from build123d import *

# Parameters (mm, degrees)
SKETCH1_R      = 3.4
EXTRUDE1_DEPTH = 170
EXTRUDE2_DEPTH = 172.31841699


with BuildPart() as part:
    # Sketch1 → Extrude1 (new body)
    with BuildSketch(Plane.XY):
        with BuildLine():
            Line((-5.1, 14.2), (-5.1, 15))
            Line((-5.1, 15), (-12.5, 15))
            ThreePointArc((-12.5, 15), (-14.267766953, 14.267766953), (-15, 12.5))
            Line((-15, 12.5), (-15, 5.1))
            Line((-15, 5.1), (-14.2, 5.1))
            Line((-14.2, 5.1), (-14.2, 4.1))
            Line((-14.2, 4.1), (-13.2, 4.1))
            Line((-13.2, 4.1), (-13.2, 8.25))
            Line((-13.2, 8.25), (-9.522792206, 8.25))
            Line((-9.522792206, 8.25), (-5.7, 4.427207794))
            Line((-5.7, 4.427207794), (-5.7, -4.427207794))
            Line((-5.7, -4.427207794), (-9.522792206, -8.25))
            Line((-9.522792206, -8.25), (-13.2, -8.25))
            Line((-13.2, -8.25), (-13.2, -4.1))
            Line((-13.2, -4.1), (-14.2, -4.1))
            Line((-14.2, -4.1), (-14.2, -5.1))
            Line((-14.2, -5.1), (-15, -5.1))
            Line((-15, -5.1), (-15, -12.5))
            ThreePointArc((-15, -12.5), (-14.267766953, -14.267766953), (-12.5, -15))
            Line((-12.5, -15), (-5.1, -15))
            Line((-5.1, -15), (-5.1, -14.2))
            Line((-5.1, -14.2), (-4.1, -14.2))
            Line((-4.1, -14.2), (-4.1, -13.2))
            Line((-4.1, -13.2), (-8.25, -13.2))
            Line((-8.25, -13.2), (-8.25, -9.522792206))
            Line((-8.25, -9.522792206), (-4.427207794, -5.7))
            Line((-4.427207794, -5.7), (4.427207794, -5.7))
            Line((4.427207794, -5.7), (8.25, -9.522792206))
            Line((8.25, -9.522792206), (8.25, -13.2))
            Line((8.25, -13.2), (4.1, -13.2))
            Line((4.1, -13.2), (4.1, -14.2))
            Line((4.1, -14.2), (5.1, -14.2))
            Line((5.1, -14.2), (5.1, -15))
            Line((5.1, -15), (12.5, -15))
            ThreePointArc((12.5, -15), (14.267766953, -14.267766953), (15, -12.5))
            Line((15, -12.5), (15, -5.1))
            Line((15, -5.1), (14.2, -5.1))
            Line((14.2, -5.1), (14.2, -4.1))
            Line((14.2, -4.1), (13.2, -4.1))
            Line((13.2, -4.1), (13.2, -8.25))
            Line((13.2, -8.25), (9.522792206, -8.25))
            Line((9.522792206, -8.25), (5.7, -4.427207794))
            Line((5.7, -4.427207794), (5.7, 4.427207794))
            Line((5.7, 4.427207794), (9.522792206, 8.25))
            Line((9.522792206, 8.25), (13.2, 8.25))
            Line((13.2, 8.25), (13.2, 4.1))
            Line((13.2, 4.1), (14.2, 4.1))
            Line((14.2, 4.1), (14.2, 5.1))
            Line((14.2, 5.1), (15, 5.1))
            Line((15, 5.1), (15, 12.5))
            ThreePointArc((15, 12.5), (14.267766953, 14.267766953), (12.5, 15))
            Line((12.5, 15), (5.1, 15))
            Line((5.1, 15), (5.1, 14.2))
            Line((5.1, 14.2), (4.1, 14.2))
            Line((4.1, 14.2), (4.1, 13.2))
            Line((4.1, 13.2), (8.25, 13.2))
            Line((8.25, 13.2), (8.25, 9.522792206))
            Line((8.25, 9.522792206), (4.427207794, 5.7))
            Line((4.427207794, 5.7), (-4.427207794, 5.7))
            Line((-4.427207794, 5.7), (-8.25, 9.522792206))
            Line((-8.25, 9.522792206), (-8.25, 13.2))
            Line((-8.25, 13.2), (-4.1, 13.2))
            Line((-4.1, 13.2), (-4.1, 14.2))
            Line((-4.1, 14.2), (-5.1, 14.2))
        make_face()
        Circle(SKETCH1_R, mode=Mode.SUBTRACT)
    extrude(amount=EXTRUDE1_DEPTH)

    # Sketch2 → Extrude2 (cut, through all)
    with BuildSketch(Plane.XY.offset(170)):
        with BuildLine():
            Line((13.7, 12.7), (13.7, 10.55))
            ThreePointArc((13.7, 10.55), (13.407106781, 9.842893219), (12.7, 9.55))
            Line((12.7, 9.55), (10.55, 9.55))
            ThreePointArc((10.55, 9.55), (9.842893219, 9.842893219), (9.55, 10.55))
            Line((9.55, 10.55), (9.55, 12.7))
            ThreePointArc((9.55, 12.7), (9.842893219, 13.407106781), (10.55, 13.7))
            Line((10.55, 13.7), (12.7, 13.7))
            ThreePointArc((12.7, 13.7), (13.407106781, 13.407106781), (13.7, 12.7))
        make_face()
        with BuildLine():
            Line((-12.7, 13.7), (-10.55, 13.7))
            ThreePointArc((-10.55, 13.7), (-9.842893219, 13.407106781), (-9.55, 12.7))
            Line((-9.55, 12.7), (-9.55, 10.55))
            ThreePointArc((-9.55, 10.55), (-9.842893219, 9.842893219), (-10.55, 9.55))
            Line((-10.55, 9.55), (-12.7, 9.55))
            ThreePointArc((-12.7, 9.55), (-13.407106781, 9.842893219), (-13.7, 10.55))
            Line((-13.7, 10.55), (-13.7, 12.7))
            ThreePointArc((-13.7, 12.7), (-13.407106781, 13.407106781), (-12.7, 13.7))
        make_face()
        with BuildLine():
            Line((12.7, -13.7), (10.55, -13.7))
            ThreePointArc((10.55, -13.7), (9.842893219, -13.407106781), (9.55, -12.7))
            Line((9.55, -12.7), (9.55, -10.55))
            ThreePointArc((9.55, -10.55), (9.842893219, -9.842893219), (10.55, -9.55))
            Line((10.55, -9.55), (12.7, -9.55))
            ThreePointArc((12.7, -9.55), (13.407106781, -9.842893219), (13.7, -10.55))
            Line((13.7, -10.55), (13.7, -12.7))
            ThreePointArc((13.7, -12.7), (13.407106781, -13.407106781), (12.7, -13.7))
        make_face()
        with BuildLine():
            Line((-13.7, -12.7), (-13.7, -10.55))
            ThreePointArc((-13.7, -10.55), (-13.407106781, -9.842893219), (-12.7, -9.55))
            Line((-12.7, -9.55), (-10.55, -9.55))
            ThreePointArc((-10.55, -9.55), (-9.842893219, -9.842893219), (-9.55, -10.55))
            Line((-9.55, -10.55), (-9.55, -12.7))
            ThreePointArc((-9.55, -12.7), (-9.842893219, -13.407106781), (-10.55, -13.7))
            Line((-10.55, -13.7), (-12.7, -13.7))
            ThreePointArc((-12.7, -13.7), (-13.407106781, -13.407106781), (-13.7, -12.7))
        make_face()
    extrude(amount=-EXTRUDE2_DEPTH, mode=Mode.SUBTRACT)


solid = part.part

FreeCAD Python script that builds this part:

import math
import FreeCAD as App
import Part
import Sketcher
from FreeCAD import Vector
Q = App.Units.Quantity

doc = App.newDocument("Part")
params = doc.addObject("Spreadsheet::Sheet", "Params")
for row, (alias, value) in enumerate([
    ("sketch1_diameter", "6.8 mm"),
    ("sketch1_radius", "2.5 mm"),
    ("sketch1_width", "1 mm"),
    ("sketch1_width2", "7.4 mm"),
    ("sketch1_width3", "0.8 mm"),
    ("pad1_length", "170 mm"),
    ("sketch2_radius", "1 mm"),
    ("sketch2_width", "2.15 mm"),
], start=1):
    params.set(f"A{row}", alias)
    params.set(f"B{row}", "=" + value)
    params.setAlias(f"B{row}", alias)

body = doc.addObject("PartDesign::Body", "Body")

sketch1 = body.newObject("Sketcher::SketchObject", "Sketch")
sketch1.AttachmentSupport = (doc.getObject("XY_Plane"), [""])
sketch1.MapMode = "FlatFace"
sketch1.addGeometry(Part.LineSegment(Vector(-5.1, 14.2, 0), Vector(-5.1, 15, 0)), False)
sketch1.addGeometry(Part.LineSegment(Vector(-5.1, 15, 0), Vector(-12.5, 15, 0)), False)
sketch1.addGeometry(Part.ArcOfCircle(Part.Circle(Vector(-12.5, 12.5, 0), Vector(0, 0, 1), 2.5), math.radians(90), math.radians(180)), False)
sketch1.addGeometry(Part.LineSegment(Vector(-15, 12.5, 0), Vector(-15, 5.1, 0)), False)
sketch1.addGeometry(Part.LineSegment(Vector(-15, 5.1, 0), Vector(-14.2, 5.1, 0)), False)
sketch1.addGeometry(Part.LineSegment(Vector(-14.2, 5.1, 0), Vector(-14.2, 4.1, 0)), False)
sketch1.addGeometry(Part.LineSegment(Vector(-14.2, 4.1, 0), Vector(-13.2, 4.1, 0)), False)
sketch1.addGeometry(Part.LineSegment(Vector(-13.2, 4.1, 0), Vector(-13.2, 8.25, 0)), False)
sketch1.addGeometry(Part.LineSegment(Vector(-13.2, 8.25, 0), Vector(-9.522792, 8.25, 0)), False)
sketch1.addGeometry(Part.LineSegment(Vector(-9.522792, 8.25, 0), Vector(-5.7, 4.427208, 0)), False)
sketch1.addGeometry(Part.LineSegment(Vector(-5.7, 4.427208, 0), Vector(-5.7, -4.427208, 0)), False)
sketch1.addGeometry(Part.LineSegment(Vector(-5.7, -4.427208, 0), Vector(-9.522792, -8.25, 0)), False)
sketch1.addGeometry(Part.LineSegment(Vector(-9.522792, -8.25, 0), Vector(-13.2, -8.25, 0)), False)
sketch1.addGeometry(Part.LineSegment(Vector(-13.2, -8.25, 0), Vector(-13.2, -4.1, 0)), False)
sketch1.addGeometry(Part.LineSegment(Vector(-13.2, -4.1, 0), Vector(-14.2, -4.1, 0)), False)
sketch1.addGeometry(Part.LineSegment(Vector(-14.2, -4.1, 0), Vector(-14.2, -5.1, 0)), False)
sketch1.addGeometry(Part.LineSegment(Vector(-14.2, -5.1, 0), Vector(-15, -5.1, 0)), False)
sketch1.addGeometry(Part.LineSegment(Vector(-15, -5.1, 0), Vector(-15, -12.5, 0)), False)
sketch1.addGeometry(Part.ArcOfCircle(Part.Circle(Vector(-12.5, -12.5, 0), Vector(0, 0, 1), 2.5), math.radians(180), math.radians(270)), False)
sketch1.addGeometry(Part.LineSegment(Vector(-12.5, -15, 0), Vector(-5.1, -15, 0)), False)
sketch1.addGeometry(Part.LineSegment(Vector(-5.1, -15, 0), Vector(-5.1, -14.2, 0)), False)
sketch1.addGeometry(Part.LineSegment(Vector(-5.1, -14.2, 0), Vector(-4.1, -14.2, 0)), False)
sketch1.addGeometry(Part.LineSegment(Vector(-4.1, -14.2, 0), Vector(-4.1, -13.2, 0)), False)
sketch1.addGeometry(Part.LineSegment(Vector(-4.1, -13.2, 0), Vector(-8.25, -13.2, 0)), False)
sketch1.addGeometry(Part.LineSegment(Vector(-8.25, -13.2, 0), Vector(-8.25, -9.522792, 0)), False)
sketch1.addGeometry(Part.LineSegment(Vector(-8.25, -9.522792, 0), Vector(-4.427208, -5.7, 0)), False)
sketch1.addGeometry(Part.LineSegment(Vector(-4.427208, -5.7, 0), Vector(4.427208, -5.7, 0)), False)
sketch1.addGeometry(Part.LineSegment(Vector(4.427208, -5.7, 0), Vector(8.25, -9.522792, 0)), False)
sketch1.addGeometry(Part.LineSegment(Vector(8.25, -9.522792, 0), Vector(8.25, -13.2, 0)), False)
sketch1.addGeometry(Part.LineSegment(Vector(8.25, -13.2, 0), Vector(4.1, -13.2, 0)), False)
sketch1.addGeometry(Part.LineSegment(Vector(4.1, -13.2, 0), Vector(4.1, -14.2, 0)), False)
sketch1.addGeometry(Part.LineSegment(Vector(4.1, -14.2, 0), Vector(5.1, -14.2, 0)), False)
sketch1.addGeometry(Part.LineSegment(Vector(5.1, -14.2, 0), Vector(5.1, -15, 0)), False)
sketch1.addGeometry(Part.LineSegment(Vector(5.1, -15, 0), Vector(12.5, -15, 0)), False)
sketch1.addGeometry(Part.ArcOfCircle(Part.Circle(Vector(12.5, -12.5, 0), Vector(0, 0, 1), 2.5), math.radians(-90), math.radians(0)), False)
sketch1.addGeometry(Part.LineSegment(Vector(15, -12.5, 0), Vector(15, -5.1, 0)), False)
sketch1.addGeometry(Part.LineSegment(Vector(15, -5.1, 0), Vector(14.2, -5.1, 0)), False)
sketch1.addGeometry(Part.LineSegment(Vector(14.2, -5.1, 0), Vector(14.2, -4.1, 0)), False)
sketch1.addGeometry(Part.LineSegment(Vector(14.2, -4.1, 0), Vector(13.2, -4.1, 0)), False)
sketch1.addGeometry(Part.LineSegment(Vector(13.2, -4.1, 0), Vector(13.2, -8.25, 0)), False)
sketch1.addGeometry(Part.LineSegment(Vector(13.2, -8.25, 0), Vector(9.522792, -8.25, 0)), False)
sketch1.addGeometry(Part.LineSegment(Vector(9.522792, -8.25, 0), Vector(5.7, -4.427208, 0)), False)
sketch1.addGeometry(Part.LineSegment(Vector(5.7, -4.427208, 0), Vector(5.7, 4.427208, 0)), False)
sketch1.addGeometry(Part.LineSegment(Vector(5.7, 4.427208, 0), Vector(9.522792, 8.25, 0)), False)
sketch1.addGeometry(Part.LineSegment(Vector(9.522792, 8.25, 0), Vector(13.2, 8.25, 0)), False)
sketch1.addGeometry(Part.LineSegment(Vector(13.2, 8.25, 0), Vector(13.2, 4.1, 0)), False)
sketch1.addGeometry(Part.LineSegment(Vector(13.2, 4.1, 0), Vector(14.2, 4.1, 0)), False)
sketch1.addGeometry(Part.LineSegment(Vector(14.2, 4.1, 0), Vector(14.2, 5.1, 0)), False)
sketch1.addGeometry(Part.LineSegment(Vector(14.2, 5.1, 0), Vector(15, 5.1, 0)), False)
sketch1.addGeometry(Part.LineSegment(Vector(15, 5.1, 0), Vector(15, 12.5, 0)), False)
sketch1.addGeometry(Part.ArcOfCircle(Part.Circle(Vector(12.5, 12.5, 0), Vector(0, 0, 1), 2.5), math.radians(0), math.radians(90)), False)
sketch1.addGeometry(Part.LineSegment(Vector(12.5, 15, 0), Vector(5.1, 15, 0)), False)
sketch1.addGeometry(Part.LineSegment(Vector(5.1, 15, 0), Vector(5.1, 14.2, 0)), False)
sketch1.addGeometry(Part.LineSegment(Vector(5.1, 14.2, 0), Vector(4.1, 14.2, 0)), False)
sketch1.addGeometry(Part.LineSegment(Vector(4.1, 14.2, 0), Vector(4.1, 13.2, 0)), False)
sketch1.addGeometry(Part.LineSegment(Vector(4.1, 13.2, 0), Vector(8.25, 13.2, 0)), False)
sketch1.addGeometry(Part.LineSegment(Vector(8.25, 13.2, 0), Vector(8.25, 9.522792, 0)), False)
sketch1.addGeometry(Part.LineSegment(Vector(8.25, 9.522792, 0), Vector(4.427208, 5.7, 0)), False)
sketch1.addGeometry(Part.LineSegment(Vector(4.427208, 5.7, 0), Vector(-4.427208, 5.7, 0)), False)
sketch1.addGeometry(Part.LineSegment(Vector(-4.427208, 5.7, 0), Vector(-8.25, 9.522792, 0)), False)
sketch1.addGeometry(Part.LineSegment(Vector(-8.25, 9.522792, 0), Vector(-8.25, 13.2, 0)), False)
sketch1.addGeometry(Part.LineSegment(Vector(-8.25, 13.2, 0), Vector(-4.1, 13.2, 0)), False)
sketch1.addGeometry(Part.LineSegment(Vector(-4.1, 13.2, 0), Vector(-4.1, 14.2, 0)), False)
sketch1.addGeometry(Part.LineSegment(Vector(-4.1, 14.2, 0), Vector(-5.1, 14.2, 0)), False)
sketch1.addGeometry(Part.Circle(Vector(0, 0, 0), Vector(0, 0, 1), 3.4), False)
sketch1.addConstraint(Sketcher.Constraint("Coincident", 0, 2, 1, 1))
sketch1.addConstraint(Sketcher.Constraint("Tangent", 1, 2, 2, 1))
sketch1.addConstraint(Sketcher.Constraint("Tangent", 2, 2, 3, 1))
sketch1.addConstraint(Sketcher.Constraint("Coincident", 3, 2, 4, 1))
sketch1.addConstraint(Sketcher.Constraint("Coincident", 4, 2, 5, 1))
sketch1.addConstraint(Sketcher.Constraint("Coincident", 5, 2, 6, 1))
sketch1.addConstraint(Sketcher.Constraint("Coincident", 6, 2, 7, 1))
sketch1.addConstraint(Sketcher.Constraint("Coincident", 7, 2, 8, 1))
sketch1.addConstraint(Sketcher.Constraint("Coincident", 8, 2, 9, 1))
sketch1.addConstraint(Sketcher.Constraint("Coincident", 9, 2, 10, 1))
sketch1.addConstraint(Sketcher.Constraint("Coincident", 10, 2, 11, 1))
sketch1.addConstraint(Sketcher.Constraint("Coincident", 11, 2, 12, 1))
sketch1.addConstraint(Sketcher.Constraint("Coincident", 12, 2, 13, 1))
sketch1.addConstraint(Sketcher.Constraint("Coincident", 13, 2, 14, 1))
sketch1.addConstraint(Sketcher.Constraint("Coincident", 14, 2, 15, 1))
sketch1.addConstraint(Sketcher.Constraint("Coincident", 15, 2, 16, 1))
sketch1.addConstraint(Sketcher.Constraint("Coincident", 16, 2, 17, 1))
sketch1.addConstraint(Sketcher.Constraint("Tangent", 17, 2, 18, 1))
sketch1.addConstraint(Sketcher.Constraint("Tangent", 18, 2, 19, 1))
sketch1.addConstraint(Sketcher.Constraint("Coincident", 19, 2, 20, 1))
sketch1.addConstraint(Sketcher.Constraint("Coincident", 20, 2, 21, 1))
sketch1.addConstraint(Sketcher.Constraint("Coincident", 21, 2, 22, 1))
sketch1.addConstraint(Sketcher.Constraint("Coincident", 22, 2, 23, 1))
sketch1.addConstraint(Sketcher.Constraint("Coincident", 23, 2, 24, 1))
sketch1.addConstraint(Sketcher.Constraint("Coincident", 24, 2, 25, 1))
sketch1.addConstraint(Sketcher.Constraint("Coincident", 25, 2, 26, 1))
sketch1.addConstraint(Sketcher.Constraint("Coincident", 26, 2, 27, 1))
sketch1.addConstraint(Sketcher.Constraint("Coincident", 27, 2, 28, 1))
sketch1.addConstraint(Sketcher.Constraint("Coincident", 28, 2, 29, 1))
sketch1.addConstraint(Sketcher.Constraint("Coincident", 29, 2, 30, 1))
sketch1.addConstraint(Sketcher.Constraint("Coincident", 30, 2, 31, 1))
sketch1.addConstraint(Sketcher.Constraint("Coincident", 31, 2, 32, 1))
sketch1.addConstraint(Sketcher.Constraint("Coincident", 32, 2, 33, 1))
sketch1.addConstraint(Sketcher.Constraint("Tangent", 33, 2, 34, 1))
sketch1.addConstraint(Sketcher.Constraint("Tangent", 34, 2, 35, 1))
sketch1.addConstraint(Sketcher.Constraint("Coincident", 35, 2, 36, 1))
sketch1.addConstraint(Sketcher.Constraint("Coincident", 36, 2, 37, 1))
sketch1.addConstraint(Sketcher.Constraint("Coincident", 37, 2, 38, 1))
sketch1.addConstraint(Sketcher.Constraint("Coincident", 38, 2, 39, 1))
sketch1.addConstraint(Sketcher.Constraint("Coincident", 39, 2, 40, 1))
sketch1.addConstraint(Sketcher.Constraint("Coincident", 40, 2, 41, 1))
sketch1.addConstraint(Sketcher.Constraint("Coincident", 41, 2, 42, 1))
sketch1.addConstraint(Sketcher.Constraint("Coincident", 42, 2, 43, 1))
sketch1.addConstraint(Sketcher.Constraint("Coincident", 43, 2, 44, 1))
sketch1.addConstraint(Sketcher.Constraint("Coincident", 44, 2, 45, 1))
sketch1.addConstraint(Sketcher.Constraint("Coincident", 45, 2, 46, 1))
sketch1.addConstraint(Sketcher.Constraint("Coincident", 46, 2, 47, 1))
sketch1.addConstraint(Sketcher.Constraint("Coincident", 47, 2, 48, 1))
sketch1.addConstraint(Sketcher.Constraint("Coincident", 48, 2, 49, 1))
sketch1.addConstraint(Sketcher.Constraint("Tangent", 49, 2, 50, 1))
sketch1.addConstraint(Sketcher.Constraint("Tangent", 50, 2, 51, 1))
sketch1.addConstraint(Sketcher.Constraint("Coincident", 51, 2, 52, 1))
sketch1.addConstraint(Sketcher.Constraint("Coincident", 52, 2, 53, 1))
sketch1.addConstraint(Sketcher.Constraint("Coincident", 53, 2, 54, 1))
sketch1.addConstraint(Sketcher.Constraint("Coincident", 54, 2, 55, 1))
sketch1.addConstraint(Sketcher.Constraint("Coincident", 55, 2, 56, 1))
sketch1.addConstraint(Sketcher.Constraint("Coincident", 56, 2, 57, 1))
sketch1.addConstraint(Sketcher.Constraint("Coincident", 57, 2, 58, 1))
sketch1.addConstraint(Sketcher.Constraint("Coincident", 58, 2, 59, 1))
sketch1.addConstraint(Sketcher.Constraint("Coincident", 59, 2, 60, 1))
sketch1.addConstraint(Sketcher.Constraint("Coincident", 60, 2, 61, 1))
sketch1.addConstraint(Sketcher.Constraint("Coincident", 61, 2, 62, 1))
sketch1.addConstraint(Sketcher.Constraint("Coincident", 62, 2, 63, 1))
sketch1.addConstraint(Sketcher.Constraint("Coincident", 63, 2, 0, 1))
sketch1.addConstraint(Sketcher.Constraint("Vertical", 0))
sketch1.addConstraint(Sketcher.Constraint("Horizontal", 1))
sketch1.addConstraint(Sketcher.Constraint("Vertical", 3))
sketch1.addConstraint(Sketcher.Constraint("Horizontal", 4))
sketch1.addConstraint(Sketcher.Constraint("Vertical", 5))
sketch1.addConstraint(Sketcher.Constraint("Horizontal", 6))
sketch1.addConstraint(Sketcher.Constraint("Vertical", 7))
sketch1.addConstraint(Sketcher.Constraint("Horizontal", 8))
sketch1.addConstraint(Sketcher.Constraint("Vertical", 10))
sketch1.addConstraint(Sketcher.Constraint("Horizontal", 12))
sketch1.addConstraint(Sketcher.Constraint("Vertical", 13))
sketch1.addConstraint(Sketcher.Constraint("Horizontal", 14))
sketch1.addConstraint(Sketcher.Constraint("Vertical", 15))
sketch1.addConstraint(Sketcher.Constraint("Horizontal", 16))
sketch1.addConstraint(Sketcher.Constraint("Vertical", 17))
sketch1.addConstraint(Sketcher.Constraint("Horizontal", 19))
sketch1.addConstraint(Sketcher.Constraint("Vertical", 20))
sketch1.addConstraint(Sketcher.Constraint("Horizontal", 21))
sketch1.addConstraint(Sketcher.Constraint("Vertical", 22))
sketch1.addConstraint(Sketcher.Constraint("Horizontal", 23))
sketch1.addConstraint(Sketcher.Constraint("Vertical", 24))
sketch1.addConstraint(Sketcher.Constraint("Horizontal", 26))
sketch1.addConstraint(Sketcher.Constraint("Vertical", 28))
sketch1.addConstraint(Sketcher.Constraint("Horizontal", 29))
sketch1.addConstraint(Sketcher.Constraint("Vertical", 30))
sketch1.addConstraint(Sketcher.Constraint("Horizontal", 31))
sketch1.addConstraint(Sketcher.Constraint("Vertical", 32))
sketch1.addConstraint(Sketcher.Constraint("Horizontal", 33))
sketch1.addConstraint(Sketcher.Constraint("Vertical", 35))
sketch1.addConstraint(Sketcher.Constraint("Horizontal", 36))
sketch1.addConstraint(Sketcher.Constraint("Vertical", 37))
sketch1.addConstraint(Sketcher.Constraint("Horizontal", 38))
sketch1.addConstraint(Sketcher.Constraint("Vertical", 39))
sketch1.addConstraint(Sketcher.Constraint("Horizontal", 40))
sketch1.addConstraint(Sketcher.Constraint("Vertical", 42))
sketch1.addConstraint(Sketcher.Constraint("Horizontal", 44))
sketch1.addConstraint(Sketcher.Constraint("Vertical", 45))
sketch1.addConstraint(Sketcher.Constraint("Horizontal", 46))
sketch1.addConstraint(Sketcher.Constraint("Vertical", 47))
sketch1.addConstraint(Sketcher.Constraint("Horizontal", 48))
sketch1.addConstraint(Sketcher.Constraint("Vertical", 49))
sketch1.addConstraint(Sketcher.Constraint("Horizontal", 51))
sketch1.addConstraint(Sketcher.Constraint("Vertical", 52))
sketch1.addConstraint(Sketcher.Constraint("Horizontal", 53))
sketch1.addConstraint(Sketcher.Constraint("Vertical", 54))
sketch1.addConstraint(Sketcher.Constraint("Horizontal", 55))
sketch1.addConstraint(Sketcher.Constraint("Vertical", 56))
sketch1.addConstraint(Sketcher.Constraint("Horizontal", 58))
sketch1.addConstraint(Sketcher.Constraint("Vertical", 60))
sketch1.addConstraint(Sketcher.Constraint("Horizontal", 61))
sketch1.addConstraint(Sketcher.Constraint("Vertical", 62))
sketch1.addConstraint(Sketcher.Constraint("Horizontal", 63))
sketch1.addConstraint(Sketcher.Constraint("Coincident", 64, 3, -1, 1))
sketch1.addConstraint(Sketcher.Constraint("Equal", 2, 18))
sketch1.addConstraint(Sketcher.Constraint("Equal", 18, 34))
sketch1.addConstraint(Sketcher.Constraint("Equal", 34, 50))
sketch1.addConstraint(Sketcher.Constraint("Symmetric", 2, 3, 34, 3, -1, 1))
sketch1.addConstraint(Sketcher.Constraint("Symmetric", 18, 3, 50, 3, -1, 1))
sketch1.addConstraint(Sketcher.Constraint("Symmetric", 4, 2, 36, 2, -1, 1))
sketch1.addConstraint(Sketcher.Constraint("Symmetric", 6, 2, 38, 2, -1, 1))
sketch1.addConstraint(Sketcher.Constraint("Symmetric", 8, 2, 40, 2, -1, 1))
sketch1.addConstraint(Sketcher.Constraint("Symmetric", 9, 2, 41, 2, -1, 1))
sketch1.addConstraint(Sketcher.Constraint("Symmetric", 11, 2, 43, 2, -1, 1))
sketch1.addConstraint(Sketcher.Constraint("Symmetric", 13, 2, 45, 2, -1, 1))
sketch1.addConstraint(Sketcher.Constraint("Symmetric", 15, 2, 47, 2, -1, 1))
sketch1.addConstraint(Sketcher.Constraint("Symmetric", 20, 2, 52, 2, -1, 1))
sketch1.addConstraint(Sketcher.Constraint("Symmetric", 22, 2, 54, 2, -1, 1))
sketch1.addConstraint(Sketcher.Constraint("Symmetric", 24, 2, 56, 2, -1, 1))
sketch1.addConstraint(Sketcher.Constraint("Symmetric", 25, 2, 57, 2, -1, 1))
sketch1.addConstraint(Sketcher.Constraint("Symmetric", 27, 2, 59, 2, -1, 1))
sketch1.addConstraint(Sketcher.Constraint("Symmetric", 29, 2, 61, 2, -1, 1))
sketch1.addConstraint(Sketcher.Constraint("Symmetric", 31, 2, 63, 2, -1, 1))
sketch1.addConstraint(Sketcher.Constraint("Symmetric", 18, 3, 34, 3, -2))
sketch1.addConstraint(Sketcher.Constraint("Symmetric", 24, 2, 27, 2, -2))
sketch1.addConstraint(Sketcher.Constraint("Symmetric", 22, 2, 29, 2, -2))
sketch1.addConstraint(Sketcher.Constraint("Symmetric", 20, 2, 31, 2, -2))
sketch1.addConstraint(Sketcher.Constraint("Symmetric", 15, 2, 36, 2, -2))
sketch1.addConstraint(Sketcher.Constraint("Symmetric", 13, 2, 38, 2, -2))
sketch1.addConstraint(Sketcher.Constraint("Symmetric", 11, 2, 40, 2, -2))
sketch1.addConstraint(Sketcher.Constraint("Perpendicular", 9, 11))
sketch1.addConstraint(Sketcher.Constraint("Parallel", 11, 25))
sketch1.addConstraint(Sketcher.Constraint("Perpendicular", 25, 27))
sketch1.addConstraint(Sketcher.Constraint("Perpendicular", 41, 43))
sketch1.addConstraint(Sketcher.Constraint("Perpendicular", 57, 59))
sketch1.addConstraint(Sketcher.Constraint("Horizontal", 10, 2, 41, 2))
sketch1.addConstraint(Sketcher.Constraint("Equal", 14, 21))
sketch1.addConstraint(Sketcher.Constraint("Equal", 48, 0))
sketch1.addConstraint(Sketcher.Constraint("Equal", 51, 3))
sketch1.addConstraint(Sketcher.Constraint("Equal", 63, 5))
sketch1.addConstraint(Sketcher.Constraint("Equal", 61, 7))
sketch1.addConstraint(Sketcher.Constraint("Equal", 58, 10))
sketch1.addConstraint(Sketcher.Constraint("Equal", 15, 22))
sketch1.addConstraint(Sketcher.Constraint("Equal", 44, 24))
sketch1.addConstraint(Sketcher.Constraint("Equal", 11, 25))
sketch1.addConstraint(Sketcher.Constraint("Diameter", 64, Q("6.8 mm")))
sketch1.addConstraint(Sketcher.Constraint("Radius", 2, Q("2.5 mm")))
sketch1.addConstraint(Sketcher.Constraint("DistanceX", 6, 1, 6, 2, Q("1 mm")))
sketch1.addConstraint(Sketcher.Constraint("DistanceX", 1, 2, 1, 1, Q("7.4 mm")))
sketch1.addConstraint(Sketcher.Constraint("DistanceX", 4, 1, 4, 2, Q("0.8 mm")))
sketch1.addConstraint(Sketcher.Constraint("DistanceY", -1, 1, 0, 2, Q("15 mm")))
sketch1.addConstraint(Sketcher.Constraint("DistanceX", 23, 2, 23, 1, Q("4.15 mm")))
sketch1.addConstraint(Sketcher.Constraint("DistanceX", 9, 2, -1, 1, Q("5.7 mm")))
sketch1.addConstraint(Sketcher.Constraint("DistanceX", 8, 1, 8, 2, Q("3.677208 mm")))
sketch1.setExpression("Constraints[158]", "Params.sketch1_diameter")
sketch1.setExpression("Constraints[159]", "Params.sketch1_radius")
sketch1.setExpression("Constraints[160]", "Params.sketch1_width")
sketch1.setExpression("Constraints[161]", "Params.sketch1_width2")
sketch1.setExpression("Constraints[162]", "Params.sketch1_width3")
pad1 = body.newObject("PartDesign::Pad", "Pad")
pad1.Profile = sketch1
pad1.setExpression("Length", "Params.pad1_length")

sketch2 = body.newObject("Sketcher::SketchObject", "Sketch001")
sketch2.AttachmentSupport = (doc.getObject("XY_Plane"), [""])
sketch2.MapMode = "FlatFace"
sketch2.AttachmentOffset = App.Placement(Vector(0, 0, 170), App.Rotation())
sketch2.addGeometry(Part.LineSegment(Vector(13.7, 10.55, 0), Vector(13.7, 12.7, 0)), False)
sketch2.addGeometry(Part.ArcOfCircle(Part.Circle(Vector(12.7, 12.7, 0), Vector(0, 0, 1), 1), math.radians(0), math.radians(90)), False)
sketch2.addGeometry(Part.LineSegment(Vector(12.7, 13.7, 0), Vector(10.55, 13.7, 0)), False)
sketch2.addGeometry(Part.ArcOfCircle(Part.Circle(Vector(10.55, 12.7, 0), Vector(0, 0, 1), 1), math.radians(90), math.radians(180)), False)
sketch2.addGeometry(Part.LineSegment(Vector(9.55, 12.7, 0), Vector(9.55, 10.55, 0)), False)
sketch2.addGeometry(Part.ArcOfCircle(Part.Circle(Vector(10.55, 10.55, 0), Vector(0, 0, 1), 1), math.radians(-180), math.radians(-90)), False)
sketch2.addGeometry(Part.LineSegment(Vector(10.55, 9.55, 0), Vector(12.7, 9.55, 0)), False)
sketch2.addGeometry(Part.ArcOfCircle(Part.Circle(Vector(12.7, 10.55, 0), Vector(0, 0, 1), 1), math.radians(-90), math.radians(0)), False)
sketch2.addGeometry(Part.LineSegment(Vector(-10.55, 13.7, 0), Vector(-12.7, 13.7, 0)), False)
sketch2.addGeometry(Part.ArcOfCircle(Part.Circle(Vector(-12.7, 12.7, 0), Vector(0, 0, 1), 1), math.radians(90), math.radians(180)), False)
sketch2.addGeometry(Part.LineSegment(Vector(-13.7, 12.7, 0), Vector(-13.7, 10.55, 0)), False)
sketch2.addGeometry(Part.ArcOfCircle(Part.Circle(Vector(-12.7, 10.55, 0), Vector(0, 0, 1), 1), math.radians(-180), math.radians(-90)), False)
sketch2.addGeometry(Part.LineSegment(Vector(-12.7, 9.55, 0), Vector(-10.55, 9.55, 0)), False)
sketch2.addGeometry(Part.ArcOfCircle(Part.Circle(Vector(-10.55, 10.55, 0), Vector(0, 0, 1), 1), math.radians(-90), math.radians(0)), False)
sketch2.addGeometry(Part.LineSegment(Vector(-9.55, 10.55, 0), Vector(-9.55, 12.7, 0)), False)
sketch2.addGeometry(Part.ArcOfCircle(Part.Circle(Vector(-10.55, 12.7, 0), Vector(0, 0, 1), 1), math.radians(0), math.radians(90)), False)
sketch2.addGeometry(Part.LineSegment(Vector(10.55, -13.7, 0), Vector(12.7, -13.7, 0)), False)
sketch2.addGeometry(Part.ArcOfCircle(Part.Circle(Vector(12.7, -12.7, 0), Vector(0, 0, 1), 1), math.radians(-90), math.radians(0)), False)
sketch2.addGeometry(Part.LineSegment(Vector(13.7, -12.7, 0), Vector(13.7, -10.55, 0)), False)
sketch2.addGeometry(Part.ArcOfCircle(Part.Circle(Vector(12.7, -10.55, 0), Vector(0, 0, 1), 1), math.radians(0), math.radians(90)), False)
sketch2.addGeometry(Part.LineSegment(Vector(12.7, -9.55, 0), Vector(10.55, -9.55, 0)), False)
sketch2.addGeometry(Part.ArcOfCircle(Part.Circle(Vector(10.55, -10.55, 0), Vector(0, 0, 1), 1), math.radians(90), math.radians(180)), False)
sketch2.addGeometry(Part.LineSegment(Vector(9.55, -10.55, 0), Vector(9.55, -12.7, 0)), False)
sketch2.addGeometry(Part.ArcOfCircle(Part.Circle(Vector(10.55, -12.7, 0), Vector(0, 0, 1), 1), math.radians(-180), math.radians(-90)), False)
sketch2.addGeometry(Part.LineSegment(Vector(-13.7, -10.55, 0), Vector(-13.7, -12.7, 0)), False)
sketch2.addGeometry(Part.ArcOfCircle(Part.Circle(Vector(-12.7, -12.7, 0), Vector(0, 0, 1), 1), math.radians(-180), math.radians(-90)), False)
sketch2.addGeometry(Part.LineSegment(Vector(-12.7, -13.7, 0), Vector(-10.55, -13.7, 0)), False)
sketch2.addGeometry(Part.ArcOfCircle(Part.Circle(Vector(-10.55, -12.7, 0), Vector(0, 0, 1), 1), math.radians(-90), math.radians(0)), False)
sketch2.addGeometry(Part.LineSegment(Vector(-9.55, -12.7, 0), Vector(-9.55, -10.55, 0)), False)
sketch2.addGeometry(Part.ArcOfCircle(Part.Circle(Vector(-10.55, -10.55, 0), Vector(0, 0, 1), 1), math.radians(0), math.radians(90)), False)
sketch2.addGeometry(Part.LineSegment(Vector(-10.55, -9.55, 0), Vector(-12.7, -9.55, 0)), False)
sketch2.addGeometry(Part.ArcOfCircle(Part.Circle(Vector(-12.7, -10.55, 0), Vector(0, 0, 1), 1), math.radians(90), math.radians(180)), False)
sketch2.addConstraint(Sketcher.Constraint("Tangent", 0, 2, 1, 1))
sketch2.addConstraint(Sketcher.Constraint("Tangent", 1, 2, 2, 1))
sketch2.addConstraint(Sketcher.Constraint("Tangent", 2, 2, 3, 1))
sketch2.addConstraint(Sketcher.Constraint("Tangent", 3, 2, 4, 1))
sketch2.addConstraint(Sketcher.Constraint("Tangent", 4, 2, 5, 1))
sketch2.addConstraint(Sketcher.Constraint("Tangent", 5, 2, 6, 1))
sketch2.addConstraint(Sketcher.Constraint("Tangent", 6, 2, 7, 1))
sketch2.addConstraint(Sketcher.Constraint("Tangent", 7, 2, 0, 1))
sketch2.addConstraint(Sketcher.Constraint("Tangent", 8, 2, 9, 1))
sketch2.addConstraint(Sketcher.Constraint("Tangent", 9, 2, 10, 1))
sketch2.addConstraint(Sketcher.Constraint("Tangent", 10, 2, 11, 1))
sketch2.addConstraint(Sketcher.Constraint("Tangent", 11, 2, 12, 1))
sketch2.addConstraint(Sketcher.Constraint("Tangent", 12, 2, 13, 1))
sketch2.addConstraint(Sketcher.Constraint("Tangent", 13, 2, 14, 1))
sketch2.addConstraint(Sketcher.Constraint("Tangent", 14, 2, 15, 1))
sketch2.addConstraint(Sketcher.Constraint("Tangent", 15, 2, 8, 1))
sketch2.addConstraint(Sketcher.Constraint("Tangent", 16, 2, 17, 1))
sketch2.addConstraint(Sketcher.Constraint("Tangent", 17, 2, 18, 1))
sketch2.addConstraint(Sketcher.Constraint("Tangent", 18, 2, 19, 1))
sketch2.addConstraint(Sketcher.Constraint("Tangent", 19, 2, 20, 1))
sketch2.addConstraint(Sketcher.Constraint("Tangent", 20, 2, 21, 1))
sketch2.addConstraint(Sketcher.Constraint("Tangent", 21, 2, 22, 1))
sketch2.addConstraint(Sketcher.Constraint("Tangent", 22, 2, 23, 1))
sketch2.addConstraint(Sketcher.Constraint("Tangent", 23, 2, 16, 1))
sketch2.addConstraint(Sketcher.Constraint("Tangent", 24, 2, 25, 1))
sketch2.addConstraint(Sketcher.Constraint("Tangent", 25, 2, 26, 1))
sketch2.addConstraint(Sketcher.Constraint("Tangent", 26, 2, 27, 1))
sketch2.addConstraint(Sketcher.Constraint("Tangent", 27, 2, 28, 1))
sketch2.addConstraint(Sketcher.Constraint("Tangent", 28, 2, 29, 1))
sketch2.addConstraint(Sketcher.Constraint("Tangent", 29, 2, 30, 1))
sketch2.addConstraint(Sketcher.Constraint("Tangent", 30, 2, 31, 1))
sketch2.addConstraint(Sketcher.Constraint("Tangent", 31, 2, 24, 1))
sketch2.addConstraint(Sketcher.Constraint("Vertical", 0))
sketch2.addConstraint(Sketcher.Constraint("Horizontal", 2))
sketch2.addConstraint(Sketcher.Constraint("Vertical", 4))
sketch2.addConstraint(Sketcher.Constraint("Horizontal", 6))
sketch2.addConstraint(Sketcher.Constraint("Horizontal", 8))
sketch2.addConstraint(Sketcher.Constraint("Vertical", 10))
sketch2.addConstraint(Sketcher.Constraint("Horizontal", 12))
sketch2.addConstraint(Sketcher.Constraint("Vertical", 14))
sketch2.addConstraint(Sketcher.Constraint("Horizontal", 16))
sketch2.addConstraint(Sketcher.Constraint("Vertical", 18))
sketch2.addConstraint(Sketcher.Constraint("Horizontal", 20))
sketch2.addConstraint(Sketcher.Constraint("Vertical", 22))
sketch2.addConstraint(Sketcher.Constraint("Vertical", 24))
sketch2.addConstraint(Sketcher.Constraint("Horizontal", 26))
sketch2.addConstraint(Sketcher.Constraint("Vertical", 28))
sketch2.addConstraint(Sketcher.Constraint("Horizontal", 30))
sketch2.addConstraint(Sketcher.Constraint("Equal", 1, 3))
sketch2.addConstraint(Sketcher.Constraint("Equal", 3, 5))
sketch2.addConstraint(Sketcher.Constraint("Equal", 5, 7))
sketch2.addConstraint(Sketcher.Constraint("Equal", 7, 9))
sketch2.addConstraint(Sketcher.Constraint("Equal", 9, 11))
sketch2.addConstraint(Sketcher.Constraint("Equal", 11, 13))
sketch2.addConstraint(Sketcher.Constraint("Equal", 13, 15))
sketch2.addConstraint(Sketcher.Constraint("Equal", 15, 17))
sketch2.addConstraint(Sketcher.Constraint("Equal", 17, 19))
sketch2.addConstraint(Sketcher.Constraint("Equal", 19, 21))
sketch2.addConstraint(Sketcher.Constraint("Equal", 21, 23))
sketch2.addConstraint(Sketcher.Constraint("Equal", 23, 25))
sketch2.addConstraint(Sketcher.Constraint("Equal", 25, 27))
sketch2.addConstraint(Sketcher.Constraint("Equal", 27, 29))
sketch2.addConstraint(Sketcher.Constraint("Equal", 29, 31))
sketch2.addConstraint(Sketcher.Constraint("Symmetric", 9, 3, 17, 3, -1, 1))
sketch2.addConstraint(Sketcher.Constraint("Symmetric", 13, 3, 21, 3, -1, 1))
sketch2.addConstraint(Sketcher.Constraint("Symmetric", 1, 3, 25, 3, -1, 1))
sketch2.addConstraint(Sketcher.Constraint("Symmetric", 5, 3, 29, 3, -1, 1))
sketch2.addConstraint(Sketcher.Constraint("Symmetric", 1, 3, 9, 3, -2))
sketch2.addConstraint(Sketcher.Constraint("Symmetric", 5, 3, 13, 3, -2))
sketch2.addConstraint(Sketcher.Constraint("Equal", 30, 0))
sketch2.addConstraint(Sketcher.Constraint("Radius", 1, Q("1 mm")))
sketch2.addConstraint(Sketcher.Constraint("DistanceX", 2, 2, 2, 1, Q("2.15 mm")))
sketch2.addConstraint(Sketcher.Constraint("DistanceX", -1, 1, 1, 3, Q("12.7 mm")))
sketch2.addConstraint(Sketcher.Constraint("DistanceY", -1, 1, 1, 3, Q("12.7 mm")))
sketch2.setExpression("Constraints[70]", "Params.sketch2_radius")
sketch2.setExpression("Constraints[71]", "Params.sketch2_width")
pocket1 = body.newObject("PartDesign::Pocket", "Pocket")
pocket1.Profile = sketch2
pocket1.Type = "ThroughAll"

doc.recompute()
